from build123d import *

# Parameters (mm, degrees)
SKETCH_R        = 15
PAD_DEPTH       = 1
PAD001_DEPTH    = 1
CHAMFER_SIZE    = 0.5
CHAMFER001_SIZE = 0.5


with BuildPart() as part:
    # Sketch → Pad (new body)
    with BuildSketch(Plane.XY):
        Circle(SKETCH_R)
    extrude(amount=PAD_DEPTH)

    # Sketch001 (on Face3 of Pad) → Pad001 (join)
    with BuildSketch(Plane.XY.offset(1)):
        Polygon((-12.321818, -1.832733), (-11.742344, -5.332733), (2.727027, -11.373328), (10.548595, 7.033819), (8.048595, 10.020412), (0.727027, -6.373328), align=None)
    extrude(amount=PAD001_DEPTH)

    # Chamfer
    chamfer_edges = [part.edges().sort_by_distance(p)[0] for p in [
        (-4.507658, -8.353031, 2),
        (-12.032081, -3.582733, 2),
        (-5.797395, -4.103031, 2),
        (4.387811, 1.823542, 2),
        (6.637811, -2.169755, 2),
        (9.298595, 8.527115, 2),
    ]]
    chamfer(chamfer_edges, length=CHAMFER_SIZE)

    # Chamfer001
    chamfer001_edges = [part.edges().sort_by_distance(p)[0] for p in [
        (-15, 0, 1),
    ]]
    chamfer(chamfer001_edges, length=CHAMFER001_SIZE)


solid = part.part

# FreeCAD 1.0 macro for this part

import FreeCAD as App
import Part
import Sketcher

V = App.Vector


def edges_at(feature, points):
    """Names of the edges that pass closest to the given points."""
    edges = feature.Shape.Edges
    near = lambda p: min(range(len(edges)), key=lambda i: edges[i].distToShape(Part.Vertex(*p))[0])
    return sorted({f"Edge{near(p) + 1}" for p in points})

doc = App.newDocument("Part")
params = doc.addObject("Spreadsheet::Sheet", "Params")
for row, (alias, value) in enumerate([
    ("sketch1_diameter", "30 mm"),
    ("pad1_length", "1 mm"),
    ("sketch2_length", "20 mm"),
    ("pad2_length", "1 mm"),
    ("chamfer_size", "0.5 mm"),
    ("chamfer2_size", "0.5 mm"),
], start=1):
    params.set(f"A{row}", alias)
    params.set(f"B{row}", "=" + value)
    params.setAlias(f"B{row}", alias)

body = doc.addObject("PartDesign::Body", "Body")

# Sketch on XY plane
sketch1 = body.newObject("Sketcher::SketchObject", "Sketch")
sketch1.AttachmentSupport = (doc.getObject("XY_Plane"), [""])
sketch1.MapMode = "FlatFace"
sketch1.addGeometry(Part.Circle(V(0, 0, 0), V(0, 0, 1), 15), False)
sketch1.addConstraint([
    Sketcher.Constraint("Coincident", 0, 3, -1, 1),
    Sketcher.Constraint("Diameter", 0, 30.0),
])
sketch1.setExpression("Constraints[1]", "Params.sketch1_diameter")
pad1 = body.newObject("PartDesign::Pad", "Pad")
pad1.Profile = sketch1
pad1.setExpression("Length", "Params.pad1_length")

# Sketch on XY plane
sketch2 = body.newObject("Sketcher::SketchObject", "Sketch001")
sketch2.AttachmentSupport = (doc.getObject("XY_Plane"), [""])
sketch2.MapMode = "FlatFace"
sketch2.AttachmentOffset = App.Placement(V(0, 0, 1), App.Rotation())
sketch2.addGeometry([
    Part.LineSegment(V(-12.321818, -1.832733, 0), V(-11.742344, -5.332733, 0)),  # 0
    Part.LineSegment(V(-11.742344, -5.332733, 0), V(2.727027, -11.373328, 0)),  # 1
    Part.LineSegment(V(2.727027, -11.373328, 0), V(10.548595, 7.033819, 0)),  # 2
    Part.LineSegment(V(10.548595, 7.033819, 0), V(8.048595, 10.020412, 0)),  # 3
    Part.LineSegment(V(8.048595, 10.020412, 0), V(0.727027, -6.373328, 0)),  # 4
    Part.LineSegment(V(0.727027, -6.373328, 0), V(-12.321818, -1.832733, 0)),  # 5
], False)
sketch2.addConstraint([
    Sketcher.Constraint("Coincident", 0, 2, 1, 1),
    Sketcher.Constraint("Coincident", 1, 2, 2, 1),
    Sketcher.Constraint("Coincident", 2, 2, 3, 1),
    Sketcher.Constraint("Coincident", 3, 2, 4, 1),
    Sketcher.Constraint("Coincident", 4, 2, 5, 1),
    Sketcher.Constraint("Coincident", 5, 2, 0, 1),
    Sketcher.Constraint("Distance", 2, 20.0),
    Sketcher.Constraint("DistanceX", 4, 2, 1, 2, 2.0),
    Sketcher.Constraint("DistanceY", 1, 2, 4, 2, 5.0),
    Sketcher.Constraint("DistanceX", 3, 2, 2, 2, 2.5),
    Sketcher.Constraint("DistanceY", 0, 2, 5, 2, 3.5),
    Sketcher.Constraint("Distance", 1, 15.679652),
    Sketcher.Constraint("Distance", 4, 17.954389),
    Sketcher.Constraint("Distance", 5, 13.816272),
    Sketcher.Constraint("DistanceY", 1, 2, -1, 1, 11.373328),
    Sketcher.Constraint("DistanceY", -1, 1, 2, 2, 7.033819),
    Sketcher.Constraint("DistanceX", 0, 2, 1, 2, 14.469371),
    Sketcher.Constraint("DistanceX", 0, 2, -1, 1, 11.742344),
])
sketch2.setExpression("Constraints[6]", "Params.sketch2_length")
pad2 = body.newObject("PartDesign::Pad", "Pad001")
pad2.Profile = sketch2
pad2.setExpression("Length", "Params.pad2_length")
doc.recompute()

chamfer = body.newObject("PartDesign::Chamfer", "Chamfer")
chamfer.Base = (pad2, edges_at(pad2, [
    (-4.508, -8.353, 2),
    (-12.032, -3.583, 2),
    (-5.797, -4.103, 2),
    (4.388, 1.824, 2),
    (6.638, -2.17, 2),
    (9.299, 8.527, 2),
]))
chamfer.setExpression("Size", "Params.chamfer_size")
doc.recompute()

chamfer2 = body.newObject("PartDesign::Chamfer", "Chamfer001")
chamfer2.Base = (chamfer, edges_at(chamfer, [(-15, 0, 1)]))
chamfer2.setExpression("Size", "Params.chamfer2_size")

doc.recompute()
